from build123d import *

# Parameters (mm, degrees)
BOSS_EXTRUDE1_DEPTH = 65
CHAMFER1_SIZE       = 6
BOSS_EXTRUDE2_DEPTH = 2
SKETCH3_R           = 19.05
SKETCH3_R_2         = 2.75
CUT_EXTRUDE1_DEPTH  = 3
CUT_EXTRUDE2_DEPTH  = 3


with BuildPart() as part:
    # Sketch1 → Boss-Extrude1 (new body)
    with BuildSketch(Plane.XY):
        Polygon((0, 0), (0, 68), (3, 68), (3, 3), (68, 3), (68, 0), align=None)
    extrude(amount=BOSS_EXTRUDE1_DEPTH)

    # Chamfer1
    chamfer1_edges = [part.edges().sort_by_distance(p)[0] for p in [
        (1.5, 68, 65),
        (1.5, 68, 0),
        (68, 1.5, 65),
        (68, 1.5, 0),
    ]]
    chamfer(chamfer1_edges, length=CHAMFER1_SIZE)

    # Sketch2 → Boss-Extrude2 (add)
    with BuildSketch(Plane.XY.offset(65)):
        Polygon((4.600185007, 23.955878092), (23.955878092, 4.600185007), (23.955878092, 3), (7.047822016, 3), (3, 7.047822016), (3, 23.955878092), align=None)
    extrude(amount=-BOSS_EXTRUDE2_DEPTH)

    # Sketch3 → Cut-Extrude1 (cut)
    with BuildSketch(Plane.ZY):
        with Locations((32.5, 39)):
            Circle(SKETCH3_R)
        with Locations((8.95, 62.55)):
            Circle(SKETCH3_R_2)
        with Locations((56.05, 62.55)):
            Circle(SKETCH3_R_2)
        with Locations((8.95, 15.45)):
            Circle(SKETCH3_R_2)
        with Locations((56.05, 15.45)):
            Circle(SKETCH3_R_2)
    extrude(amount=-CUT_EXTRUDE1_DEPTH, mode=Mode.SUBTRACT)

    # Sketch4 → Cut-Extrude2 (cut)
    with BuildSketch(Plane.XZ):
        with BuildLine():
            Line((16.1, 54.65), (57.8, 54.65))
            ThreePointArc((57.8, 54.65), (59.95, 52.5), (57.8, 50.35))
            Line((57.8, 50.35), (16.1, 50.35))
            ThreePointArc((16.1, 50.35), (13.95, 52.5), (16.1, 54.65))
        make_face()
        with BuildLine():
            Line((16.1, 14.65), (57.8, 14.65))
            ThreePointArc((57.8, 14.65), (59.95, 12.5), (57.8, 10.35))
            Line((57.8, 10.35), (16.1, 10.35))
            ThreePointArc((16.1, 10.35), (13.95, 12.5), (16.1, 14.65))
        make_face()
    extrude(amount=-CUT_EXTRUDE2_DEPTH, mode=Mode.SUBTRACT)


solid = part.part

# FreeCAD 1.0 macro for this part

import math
import FreeCAD as App
import Part
import Sketcher
from FreeCAD import Vector


def edges_at(feature, points):
    """Names of the edges that pass closest to the given points."""
    edges = feature.Shape.Edges
    near = lambda p: min(range(len(edges)), key=lambda i: edges[i].distToShape(Part.Vertex(*p))[0])
    return sorted({f"Edge{near(p) + 1}" for p in points})

doc = App.newDocument("Part")
body = doc.addObject("PartDesign::Body", "Body")

# Sketch on XY plane
sketch1 = body.newObject("Sketcher::SketchObject", "Sketch")
sketch1.AttachmentSupport = (doc.getObject("XY_Plane"), [""])
sketch1.MapMode = "FlatFace"
sketch1.addGeometry(Part.LineSegment(Vector(0, 68, 0), Vector(0, 0, 0)), False)
sketch1.addGeometry(Part.LineSegment(Vector(0, 0, 0), Vector(68, 0, 0)), False)
sketch1.addGeometry(Part.LineSegment(Vector(68, 0, 0), Vector(68, 3, 0)), False)
sketch1.addGeometry(Part.LineSegment(Vector(68, 3, 0), Vector(3, 3, 0)), False)
sketch1.addGeometry(Part.LineSegment(Vector(3, 3, 0), Vector(3, 68, 0)), False)
sketch1.addGeometry(Part.LineSegment(Vector(3, 68, 0), Vector(0, 68, 0)), False)
sketch1.addConstraint(Sketcher.Constraint("Coincident", 0, 2, 1, 1))
sketch1.addConstraint(Sketcher.Constraint("Coincident", 1, 2, 2, 1))
sketch1.addConstraint(Sketcher.Constraint("Coincident", 2, 2, 3, 1))
sketch1.addConstraint(Sketcher.Constraint("Coincident", 3, 2, 4, 1))
sketch1.addConstraint(Sketcher.Constraint("Coincident", 4, 2, 5, 1))
sketch1.addConstraint(Sketcher.Constraint("Coincident", 5, 2, 0, 1))
sketch1.addConstraint(Sketcher.Constraint("Vertical", 0))
sketch1.addConstraint(Sketcher.Constraint("Horizontal", 1))
sketch1.addConstraint(Sketcher.Constraint("Vertical", 2))
sketch1.addConstraint(Sketcher.Constraint("Horizontal", 3))
sketch1.addConstraint(Sketcher.Constraint("Vertical", 4))
sketch1.addConstraint(Sketcher.Constraint("Horizontal", 5))
sketch1.addConstraint(Sketcher.Constraint("Coincident", 0, 2, -1, 1))
sketch1.addConstraint(Sketcher.Constraint("Equal", 1, 0))
sketch1.addConstraint(Sketcher.Constraint("Equal", 5, 2))
sketch1.addConstraint(Sketcher.Constraint("DistanceX", 1, 1, 1, 2, 68.0))
sketch1.addConstraint(Sketcher.Constraint("DistanceX", 3, 2, 3, 1, 65.0))
pad1 = body.newObject("PartDesign::Pad", "Pad")
pad1.Profile = sketch1
pad1.Length = 65
doc.recompute()

chamfer = body.newObject("PartDesign::Chamfer", "Chamfer")
chamfer.Base = (pad1, edges_at(pad1, [
    (1.5, 68, 65),
    (1.5, 68, 0),
    (68, 1.5, 65),
    (68, 1.5, 0),
]))
chamfer.Size = 6

# Sketch on XY plane
sketch2 = body.newObject("Sketcher::SketchObject", "Sketch001")
sketch2.AttachmentSupport = (doc.getObject("XY_Plane"), [""])
sketch2.MapMode = "FlatFace"
sketch2.AttachmentOffset = App.Placement(Vector(0, 0, 65), App.Rotation())
sketch2.addGeometry(Part.LineSegment(Vector(23.955878, 4.600185, 0), Vector(4.600185, 23.955878, 0)), False)
sketch2.addGeometry(Part.LineSegment(Vector(4.600185, 23.955878, 0), Vector(3, 23.955878, 0)), False)
sketch2.addGeometry(Part.LineSegment(Vector(3, 23.955878, 0), Vector(3, 7.047822, 0)), False)
sketch2.addGeometry(Part.LineSegment(Vector(3, 7.047822, 0), Vector(7.047822, 3, 0)), False)
sketch2.addGeometry(Part.LineSegment(Vector(7.047822, 3, 0), Vector(23.955878, 3, 0)), False)
sketch2.addGeometry(Part.LineSegment(Vector(23.955878, 3, 0), Vector(23.955878, 4.600185, 0)), False)
sketch2.addConstraint(Sketcher.Constraint("Coincident", 0, 2, 1, 1))
sketch2.addConstraint(Sketcher.Constraint("Coincident", 1, 2, 2, 1))
sketch2.addConstraint(Sketcher.Constraint("Coincident", 2, 2, 3, 1))
sketch2.addConstraint(Sketcher.Constraint("Coincident", 3, 2, 4, 1))
sketch2.addConstraint(Sketcher.Constraint("Coincident", 4, 2, 5, 1))
sketch2.addConstraint(Sketcher.Constraint("Coincident", 5, 2, 0, 1))
sketch2.addConstraint(Sketcher.Constraint("Horizontal", 1))
sketch2.addConstraint(Sketcher.Constraint("Vertical", 2))
sketch2.addConstraint(Sketcher.Constraint("Horizontal", 4))
sketch2.addConstraint(Sketcher.Constraint("Vertical", 5))
sketch2.addConstraint(Sketcher.Constraint("Parallel", 0, 3))
sketch2.addConstraint(Sketcher.Constraint("Equal", 4, 2))
sketch2.addConstraint(Sketcher.Constraint("Equal", 1, 5))
sketch2.addConstraint(Sketcher.Constraint("DistanceX", -1, 1, 1, 2, 3.0))
sketch2.addConstraint(Sketcher.Constraint("DistanceY", -1, 1, 3, 2, 3.0))
sketch2.addConstraint(Sketcher.Constraint("DistanceX", 1, 2, 1, 1, 1.600185))
sketch2.addConstraint(Sketcher.Constraint("DistanceX", 4, 1, 4, 2, 16.908056))
sketch2.addConstraint(Sketcher.Constraint("DistanceY", -1, 1, 0, 2, 23.955878))
pad2 = body.newObject("PartDesign::Pad", "Pad001")
pad2.Profile = sketch2
pad2.Length = 2
pad2.Reversed = True

# Sketch on YZ plane
sketch3 = body.newObject("Sketcher::SketchObject", "Sketch002")
sketch3.AttachmentSupport = (doc.getObject("YZ_Plane"), [""])
sketch3.MapMode = "FlatFace"
sketch3.addGeometry(Part.Circle(Vector(39, 32.5, 0), Vector(0, 0, 1), 19.05), False)
sketch3.addGeometry(Part.Circle(Vector(62.55, 8.95, 0), Vector(0, 0, 1), 2.75), False)
sketch3.addGeometry(Part.Circle(Vector(62.55, 56.05, 0), Vector(0, 0, 1), 2.75), False)
sketch3.addGeometry(Part.Circle(Vector(15.45, 8.95, 0), Vector(0, 0, 1), 2.75), False)
sketch3.addGeometry(Part.Circle(Vector(15.45, 56.05, 0), Vector(0, 0, 1), 2.75), False)
sketch3.addConstraint(Sketcher.Constraint("Equal", 1, 2))
sketch3.addConstraint(Sketcher.Constraint("Equal", 2, 3))
sketch3.addConstraint(Sketcher.Constraint("Equal", 3, 4))
sketch3.addConstraint(Sketcher.Constraint("Horizontal", 1, 3, 3, 3))
sketch3.addConstraint(Sketcher.Constraint("Horizontal", 2, 3, 4, 3))
sketch3.addConstraint(Sketcher.Constraint("Vertical", 1, 3, 2, 3))
sketch3.addConstraint(Sketcher.Constraint("Vertical", 3, 3, 4, 3))
sketch3.addConstraint(Sketcher.Constraint("Diameter", 0, 38.1))
sketch3.addConstraint(Sketcher.Constraint("Diameter", 1, 5.5))
sketch3.addConstraint(Sketcher.Constraint("DistanceX", -1, 1, 0, 3, 39.0))
sketch3.addConstraint(Sketcher.Constraint("DistanceY", -1, 1, 0, 3, 32.5))
sketch3.addConstraint(Sketcher.Constraint("DistanceY", 1, 3, 2, 3, 47.1))
sketch3.addConstraint(Sketcher.Constraint("DistanceX", 3, 3, 1, 3, 47.1))
sketch3.addConstraint(Sketcher.Constraint("DistanceX", -1, 1, 1, 3, 62.55))
sketch3.addConstraint(Sketcher.Constraint("DistanceY", -1, 1, 1, 3, 8.95))
pocket1 = body.newObject("PartDesign::Pocket", "Pocket")
pocket1.Profile = sketch3
pocket1.Length = 3
pocket1.Reversed = True

# Sketch on XZ plane
sketch4 = body.newObject("Sketcher::SketchObject", "Sketch003")
sketch4.AttachmentSupport = (doc.getObject("XZ_Plane"), [""])
sketch4.MapMode = "FlatFace"
sketch4.addGeometry(Part.LineSegment(Vector(57.8, 54.65, 0), Vector(16.1, 54.65, 0)), False)
sketch4.addGeometry(Part.ArcOfCircle(Part.Circle(Vector(16.1, 52.5, 0), Vector(0, 0, 1), 2.15), math.radians(90), math.radians(270)), False)
sketch4.addGeometry(Part.LineSegment(Vector(16.1, 50.35, 0), Vector(57.8, 50.35, 0)), False)
sketch4.addGeometry(Part.ArcOfCircle(Part.Circle(Vector(57.8, 52.5, 0), Vector(0, 0, 1), 2.15), math.radians(-90), math.radians(90)), False)
sketch4.addGeometry(Part.LineSegment(Vector(57.8, 14.65, 0), Vector(16.1, 14.65, 0)), False)
sketch4.addGeometry(Part.ArcOfCircle(Part.Circle(Vector(16.1, 12.5, 0), Vector(0, 0, 1), 2.15), math.radians(90), math.radians(270)), False)
sketch4.addGeometry(Part.LineSegment(Vector(16.1, 10.35, 0), Vector(57.8, 10.35, 0)), False)
sketch4.addGeometry(Part.ArcOfCircle(Part.Circle(Vector(57.8, 12.5, 0), Vector(0, 0, 1), 2.15), math.radians(-90), math.radians(90)), False)
sketch4.addConstraint(Sketcher.Constraint("Tangent", 0, 2, 1, 1))
sketch4.addConstraint(Sketcher.Constraint("Tangent", 1, 2, 2, 1))
sketch4.addConstraint(Sketcher.Constraint("Tangent", 2, 2, 3, 1))
sketch4.addConstraint(Sketcher.Constraint("Tangent", 3, 2, 0, 1))
sketch4.addConstraint(Sketcher.Constraint("Tangent", 4, 2, 5, 1))
sketch4.addConstraint(Sketcher.Constraint("Tangent", 5, 2, 6, 1))
sketch4.addConstraint(Sketcher.Constraint("Tangent", 6, 2, 7, 1))
sketch4.addConstraint(Sketcher.Constraint("Tangent", 7, 2, 4, 1))
sketch4.addConstraint(Sketcher.Constraint("Horizontal", 0))
sketch4.addConstraint(Sketcher.Constraint("Horizontal", 2))
sketch4.addConstraint(Sketcher.Constraint("Horizontal", 4))
sketch4.addConstraint(Sketcher.Constraint("Horizontal", 6))
sketch4.addConstraint(Sketcher.Constraint("Equal", 3, 5))
sketch4.addConstraint(Sketcher.Constraint("Vertical", 1, 3, 5, 3))
sketch4.addConstraint(Sketcher.Constraint("Vertical", 3, 3, 7, 3))
sketch4.addConstraint(Sketcher.Constraint("Radius", 1, 2.15))
sketch4.addConstraint(Sketcher.Constraint("DistanceX", 0, 2, 0, 1, 41.7))
sketch4.addConstraint(Sketcher.Constraint("DistanceY", 5, 3, 1, 3, 40.0))
sketch4.addConstraint(Sketcher.Constraint("DistanceX", -1, 1, 1, 3, 16.1))
sketch4.addConstraint(Sketcher.Constraint("DistanceY", -1, 1, 1, 3, 52.5))
pocket2 = body.newObject("PartDesign::Pocket", "Pocket001")
pocket2.Profile = sketch4
pocket2.Length = 3

doc.recompute()
